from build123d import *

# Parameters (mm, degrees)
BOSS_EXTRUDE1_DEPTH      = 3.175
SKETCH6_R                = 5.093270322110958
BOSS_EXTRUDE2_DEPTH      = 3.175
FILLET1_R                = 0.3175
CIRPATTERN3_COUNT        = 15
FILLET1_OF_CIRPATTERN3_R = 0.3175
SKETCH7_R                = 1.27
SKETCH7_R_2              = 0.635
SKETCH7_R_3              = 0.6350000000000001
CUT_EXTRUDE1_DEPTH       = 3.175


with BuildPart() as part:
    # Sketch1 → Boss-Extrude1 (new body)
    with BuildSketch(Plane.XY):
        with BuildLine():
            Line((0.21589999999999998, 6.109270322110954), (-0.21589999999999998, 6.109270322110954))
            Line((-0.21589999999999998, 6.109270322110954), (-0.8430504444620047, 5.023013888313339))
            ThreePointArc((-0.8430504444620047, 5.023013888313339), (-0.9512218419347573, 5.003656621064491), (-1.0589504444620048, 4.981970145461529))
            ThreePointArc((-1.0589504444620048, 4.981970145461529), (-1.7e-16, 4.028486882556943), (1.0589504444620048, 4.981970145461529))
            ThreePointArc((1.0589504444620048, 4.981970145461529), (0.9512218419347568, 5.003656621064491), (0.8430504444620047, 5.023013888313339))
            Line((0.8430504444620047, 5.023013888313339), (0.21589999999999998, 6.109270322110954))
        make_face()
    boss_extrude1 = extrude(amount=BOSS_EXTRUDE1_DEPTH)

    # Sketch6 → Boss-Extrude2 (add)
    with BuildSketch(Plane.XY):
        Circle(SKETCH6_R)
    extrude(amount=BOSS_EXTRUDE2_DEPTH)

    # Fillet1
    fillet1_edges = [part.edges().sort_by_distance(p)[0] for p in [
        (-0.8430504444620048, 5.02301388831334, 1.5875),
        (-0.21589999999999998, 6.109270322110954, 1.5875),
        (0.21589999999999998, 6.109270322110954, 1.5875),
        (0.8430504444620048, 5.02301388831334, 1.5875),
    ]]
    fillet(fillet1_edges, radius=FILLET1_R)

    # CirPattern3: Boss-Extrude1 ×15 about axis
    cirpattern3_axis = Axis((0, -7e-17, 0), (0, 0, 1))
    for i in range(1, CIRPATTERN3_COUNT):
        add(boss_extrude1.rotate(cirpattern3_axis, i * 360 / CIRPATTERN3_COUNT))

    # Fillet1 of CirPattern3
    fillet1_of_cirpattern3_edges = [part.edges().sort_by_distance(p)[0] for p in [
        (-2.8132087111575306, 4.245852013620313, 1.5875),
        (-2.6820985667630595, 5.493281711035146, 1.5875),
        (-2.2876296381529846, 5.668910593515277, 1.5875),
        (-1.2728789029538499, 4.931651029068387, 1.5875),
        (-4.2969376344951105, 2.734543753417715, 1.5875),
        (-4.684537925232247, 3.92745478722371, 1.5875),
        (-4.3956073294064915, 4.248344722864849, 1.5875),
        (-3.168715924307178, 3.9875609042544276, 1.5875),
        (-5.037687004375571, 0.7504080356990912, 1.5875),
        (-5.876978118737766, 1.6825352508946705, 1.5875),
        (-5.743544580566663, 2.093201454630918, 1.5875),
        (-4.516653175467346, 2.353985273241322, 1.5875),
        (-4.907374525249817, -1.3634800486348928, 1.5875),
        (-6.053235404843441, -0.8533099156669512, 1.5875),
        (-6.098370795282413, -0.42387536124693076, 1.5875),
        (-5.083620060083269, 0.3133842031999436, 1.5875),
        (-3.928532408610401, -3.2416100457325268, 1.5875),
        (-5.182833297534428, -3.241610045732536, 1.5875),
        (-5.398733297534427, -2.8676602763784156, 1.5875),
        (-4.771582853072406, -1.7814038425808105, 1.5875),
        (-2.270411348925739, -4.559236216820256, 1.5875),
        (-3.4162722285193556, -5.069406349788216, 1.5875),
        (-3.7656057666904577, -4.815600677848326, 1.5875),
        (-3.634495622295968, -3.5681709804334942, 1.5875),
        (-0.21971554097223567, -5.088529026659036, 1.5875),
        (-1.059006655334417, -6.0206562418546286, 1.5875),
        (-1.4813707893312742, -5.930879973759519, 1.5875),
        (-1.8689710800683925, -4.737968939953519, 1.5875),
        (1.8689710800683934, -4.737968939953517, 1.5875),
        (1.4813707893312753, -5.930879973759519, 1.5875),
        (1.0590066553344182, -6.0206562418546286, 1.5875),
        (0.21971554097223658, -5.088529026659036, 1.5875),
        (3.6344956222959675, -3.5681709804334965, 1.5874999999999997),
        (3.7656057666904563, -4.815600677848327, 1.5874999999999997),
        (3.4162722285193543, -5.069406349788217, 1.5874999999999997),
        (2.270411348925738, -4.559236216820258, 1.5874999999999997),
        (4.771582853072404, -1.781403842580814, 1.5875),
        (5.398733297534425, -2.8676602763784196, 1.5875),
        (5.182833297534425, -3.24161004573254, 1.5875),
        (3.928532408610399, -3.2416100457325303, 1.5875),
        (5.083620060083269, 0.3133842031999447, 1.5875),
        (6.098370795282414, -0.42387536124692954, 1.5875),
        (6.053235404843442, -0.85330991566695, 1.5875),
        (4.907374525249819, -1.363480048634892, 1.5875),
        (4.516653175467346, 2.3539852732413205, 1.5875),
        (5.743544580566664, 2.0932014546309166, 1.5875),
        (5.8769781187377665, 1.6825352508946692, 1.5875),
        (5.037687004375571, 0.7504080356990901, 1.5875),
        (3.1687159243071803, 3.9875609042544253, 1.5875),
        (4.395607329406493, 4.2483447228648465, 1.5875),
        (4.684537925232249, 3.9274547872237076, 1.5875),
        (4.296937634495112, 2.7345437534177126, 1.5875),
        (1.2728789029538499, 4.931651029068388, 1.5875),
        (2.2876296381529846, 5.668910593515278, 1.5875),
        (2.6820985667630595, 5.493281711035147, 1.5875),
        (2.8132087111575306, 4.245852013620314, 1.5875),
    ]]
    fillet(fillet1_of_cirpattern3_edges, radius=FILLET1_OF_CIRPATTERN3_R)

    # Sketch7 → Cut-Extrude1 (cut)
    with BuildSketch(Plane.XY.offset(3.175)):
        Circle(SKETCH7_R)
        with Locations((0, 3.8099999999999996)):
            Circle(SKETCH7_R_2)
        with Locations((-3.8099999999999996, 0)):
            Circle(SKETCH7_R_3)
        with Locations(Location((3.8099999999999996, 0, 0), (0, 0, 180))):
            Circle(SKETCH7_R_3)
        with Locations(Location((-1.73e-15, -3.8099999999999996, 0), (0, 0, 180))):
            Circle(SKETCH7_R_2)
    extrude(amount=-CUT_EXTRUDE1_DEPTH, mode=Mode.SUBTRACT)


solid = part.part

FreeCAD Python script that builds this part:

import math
import FreeCAD as App
import Part
import Sketcher

V = App.Vector
Q = App.Units.Quantity


def edges_at(feature, points):
    """Names of the edges that pass closest to the given points."""
    edges = feature.Shape.Edges
    near = lambda p: min(range(len(edges)), key=lambda i: edges[i].distToShape(Part.Vertex(*p))[0])
    return sorted({f"Edge{near(p) + 1}" for p in points})

doc = App.newDocument("Part")
body = doc.addObject("PartDesign::Body", "Body")

sketch1 = body.newObject("Sketcher::SketchObject", "Sketch")
sketch1.AttachmentSupport = (doc.getObject("XY_Plane"), [""])
sketch1.MapMode = "FlatFace"
sketch1.addGeometry([
    Part.LineSegment(V(0.22, 6.11, 0), V(-0.22, 6.11, 0)),
    Part.LineSegment(V(-0.22, 6.11, 0), V(-0.84, 5.02, 0)),
    Part.ArcOfCircle(Part.Circle(V(0, 0, 0), V(0, 0, 1), 5.09), math.radians(99.53), math.radians(102)),
    Part.ArcOfCircle(Part.Circle(V(0, 5.09, 0), V(0, 0, 1), 1.06), math.radians(-174), math.radians(-6)),
    Part.ArcOfCircle(Part.Circle(V(0, 0, 0), V(0, 0, 1), 5.09), math.radians(78), math.radians(80.47)),
    Part.LineSegment(V(0.84, 5.02, 0), V(0.22, 6.11, 0)),
], False)
sketch1.addConstraint([
    Sketcher.Constraint("Coincident", 0, 2, 1, 1),
    Sketcher.Constraint("Coincident", 1, 2, 2, 1),
    Sketcher.Constraint("Coincident", 2, 2, 3, 1),
    Sketcher.Constraint("Coincident", 3, 2, 4, 1),
    Sketcher.Constraint("Coincident", 4, 2, 5, 1),
    Sketcher.Constraint("Coincident", 5, 2, 0, 1),
    Sketcher.Constraint("Horizontal", 0),
    Sketcher.Constraint("Coincident", 2, 3, -1, 1),
    Sketcher.Constraint("Coincident", 4, 3, -1, 1),
    Sketcher.Constraint("Equal", 2, 4),
    Sketcher.Constraint("PointOnObject", 3, 3, -2),
    Sketcher.Constraint("Horizontal", 1, 2, 4, 2),
    Sketcher.Constraint("Equal", 1, 5),
    Sketcher.Constraint("Angle", 1, Q("-120 deg")),
    Sketcher.Constraint("DistanceX", 0, 2, 0, 1, Q("0.017 in")),
    Sketcher.Constraint("DistanceY", 3, 3, 0, 2, Q("0.04 in")),
    Sketcher.Constraint("Radius", 2, Q("5.09327 mm")),
    Sketcher.Constraint("Radius", 3, Q("1.064783 mm")),
    Sketcher.Constraint("DistanceX", 2, 2, 1, 2, Q("0.0085 in")),
])
pad1 = body.newObject("PartDesign::Pad", "Pad")
pad1.Profile = sketch1
pad1.Length = Q("0.125 in")

sketch2 = body.newObject("Sketcher::SketchObject", "Sketch001")
sketch2.AttachmentSupport = (doc.getObject("XY_Plane"), [""])
sketch2.MapMode = "FlatFace"
sketch2.addGeometry(Part.Circle(V(0, 0, 0), V(0, 0, 1), 5), False)
sketch2.addConstraint([
    Sketcher.Constraint("Coincident", 0, 3, -1, 1),
    Sketcher.Constraint("Diameter", 0, Q("10.186541 mm")),
])
pad2 = body.newObject("PartDesign::Pad", "Pad001")
pad2.Profile = sketch2
pad2.Length = Q("0.125 in")
doc.recompute()

fillet = body.newObject("PartDesign::Fillet", "Fillet")
fillet.Base = (pad2, edges_at(pad2, [
    (-0.843, 5.023, 1.587),
    (-0.216, 6.109, 1.587),
    (0.216, 6.109, 1.587),
    (0.843, 5.023, 1.587),
]))
fillet.Radius = Q("0.0125 in")
doc.recompute()

polarpattern = body.newObject("PartDesign::PolarPattern", "PolarPattern")
polarpattern.Originals = [pad1]
polarpattern.Axis = (doc.getObject("Z_Axis"), [""])
polarpattern.Angle = 360
polarpattern.Occurrences = 15
body.Tip = polarpattern
doc.recompute()

fillet2 = body.newObject("PartDesign::Fillet", "Fillet001")
fillet2.Base = (polarpattern, edges_at(polarpattern, [
    (-2.813, 4.246, 1.587),
    (-2.682, 5.493, 1.587),
    (-2.288, 5.669, 1.587),
    (-1.273, 4.932, 1.587),
    (-4.297, 2.735, 1.587),
    (-4.685, 3.927, 1.587),
    (-4.396, 4.248, 1.587),
    (-3.169, 3.988, 1.587),
    (-5.038, 0.75, 1.587),
    (-5.877, 1.683, 1.587),
    (-5.744, 2.093, 1.587),
    (-4.517, 2.354, 1.587),
    (-4.907, -1.363, 1.587),
    (-6.053, -0.853, 1.587),
    (-6.098, -0.424, 1.587),
    (-5.084, 0.313, 1.587),
    (-3.929, -3.242, 1.587),
    (-5.183, -3.242, 1.587),
    (-5.399, -2.868, 1.587),
    (-4.772, -1.781, 1.587),
    (-2.27, -4.559, 1.587),
    (-3.416, -5.069, 1.587),
    (-3.766, -4.816, 1.587),
    (-3.634, -3.568, 1.587),
    (-0.22, -5.089, 1.587),
    (-1.059, -6.021, 1.587),
    (-1.481, -5.931, 1.587),
    (-1.869, -4.738, 1.587),
    (1.869, -4.738, 1.587),
    (1.481, -5.931, 1.587),
    (1.059, -6.021, 1.587),
    (0.22, -5.089, 1.587),
    (3.634, -3.568, 1.587),
    (3.766, -4.816, 1.587),
    (3.416, -5.069, 1.587),
    (2.27, -4.559, 1.587),
    (4.772, -1.781, 1.587),
    (5.399, -2.868, 1.587),
    (5.183, -3.242, 1.587),
    (3.929, -3.242, 1.587),
    (5.084, 0.313, 1.587),
    (6.098, -0.424, 1.587),
    (6.053, -0.853, 1.587),
    (4.907, -1.363, 1.587),
    (4.517, 2.354, 1.587),
    (5.744, 2.093, 1.587),
    (5.877, 1.683, 1.587),
    (5.038, 0.75, 1.587),
    (3.169, 3.988, 1.587),
    (4.396, 4.248, 1.587),
    (4.685, 3.927, 1.587),
    (4.297, 2.735, 1.587),
    (1.273, 4.932, 1.587),
    (2.288, 5.669, 1.587),
    (2.682, 5.493, 1.587),
    (2.813, 4.246, 1.587),
]))
fillet2.Radius = Q("0.0125 in")

sketch3 = body.newObject("Sketcher::SketchObject", "Sketch002")
sketch3.AttachmentSupport = (doc.getObject("XY_Plane"), [""])
sketch3.MapMode = "FlatFace"
sketch3.AttachmentOffset = App.Placement(V(0, 0, 0.125 * 25.4), App.Rotation())
sketch3.addGeometry([
    Part.Circle(V(0, 0, 0), V(0, 0, 1), 1.3),
    Part.Circle(V(0, 3.8, 0), V(0, 0, 1), 0.6),
    Part.Circle(V(-3.8, 0, 0), V(0, 0, 1), 0.6),
    Part.Circle(V(3.8, 0, 0), V(0, 0, 1), 0.6),
    Part.Circle(V(0, -3.8, 0), V(0, 0, 1), 0.6),
], False)
sketch3.addConstraint([
    Sketcher.Constraint("Coincident", 0, 3, -1, 1),
    Sketcher.Constraint("Equal", 1, 2),
    Sketcher.Constraint("Equal", 2, 3),
    Sketcher.Constraint("Equal", 3, 4),
    Sketcher.Constraint("Symmetric", 2, 3, 3, 3, -1, 1),
    Sketcher.Constraint("Symmetric", 1, 3, 4, 3, -1, 1),
    Sketcher.Constraint("PointOnObject", 1, 3, -2),
    Sketcher.Constraint("PointOnObject", 2, 3, -1),
    Sketcher.Constraint("Diameter", 0, Q("0.1 in")),
    Sketcher.Constraint("Diameter", 1, Q("0.05 in")),
    Sketcher.Constraint("DistanceX", 2, 3, 3, 3, Q("0.3 in")),
    Sketcher.Constraint("DistanceY", 4, 3, 1, 3, Q("0.3 in")),
])
pocket1 = body.newObject("PartDesign::Pocket", "Pocket")
pocket1.Profile = sketch3
pocket1.Length = Q("0.125 in")

doc.recompute()
